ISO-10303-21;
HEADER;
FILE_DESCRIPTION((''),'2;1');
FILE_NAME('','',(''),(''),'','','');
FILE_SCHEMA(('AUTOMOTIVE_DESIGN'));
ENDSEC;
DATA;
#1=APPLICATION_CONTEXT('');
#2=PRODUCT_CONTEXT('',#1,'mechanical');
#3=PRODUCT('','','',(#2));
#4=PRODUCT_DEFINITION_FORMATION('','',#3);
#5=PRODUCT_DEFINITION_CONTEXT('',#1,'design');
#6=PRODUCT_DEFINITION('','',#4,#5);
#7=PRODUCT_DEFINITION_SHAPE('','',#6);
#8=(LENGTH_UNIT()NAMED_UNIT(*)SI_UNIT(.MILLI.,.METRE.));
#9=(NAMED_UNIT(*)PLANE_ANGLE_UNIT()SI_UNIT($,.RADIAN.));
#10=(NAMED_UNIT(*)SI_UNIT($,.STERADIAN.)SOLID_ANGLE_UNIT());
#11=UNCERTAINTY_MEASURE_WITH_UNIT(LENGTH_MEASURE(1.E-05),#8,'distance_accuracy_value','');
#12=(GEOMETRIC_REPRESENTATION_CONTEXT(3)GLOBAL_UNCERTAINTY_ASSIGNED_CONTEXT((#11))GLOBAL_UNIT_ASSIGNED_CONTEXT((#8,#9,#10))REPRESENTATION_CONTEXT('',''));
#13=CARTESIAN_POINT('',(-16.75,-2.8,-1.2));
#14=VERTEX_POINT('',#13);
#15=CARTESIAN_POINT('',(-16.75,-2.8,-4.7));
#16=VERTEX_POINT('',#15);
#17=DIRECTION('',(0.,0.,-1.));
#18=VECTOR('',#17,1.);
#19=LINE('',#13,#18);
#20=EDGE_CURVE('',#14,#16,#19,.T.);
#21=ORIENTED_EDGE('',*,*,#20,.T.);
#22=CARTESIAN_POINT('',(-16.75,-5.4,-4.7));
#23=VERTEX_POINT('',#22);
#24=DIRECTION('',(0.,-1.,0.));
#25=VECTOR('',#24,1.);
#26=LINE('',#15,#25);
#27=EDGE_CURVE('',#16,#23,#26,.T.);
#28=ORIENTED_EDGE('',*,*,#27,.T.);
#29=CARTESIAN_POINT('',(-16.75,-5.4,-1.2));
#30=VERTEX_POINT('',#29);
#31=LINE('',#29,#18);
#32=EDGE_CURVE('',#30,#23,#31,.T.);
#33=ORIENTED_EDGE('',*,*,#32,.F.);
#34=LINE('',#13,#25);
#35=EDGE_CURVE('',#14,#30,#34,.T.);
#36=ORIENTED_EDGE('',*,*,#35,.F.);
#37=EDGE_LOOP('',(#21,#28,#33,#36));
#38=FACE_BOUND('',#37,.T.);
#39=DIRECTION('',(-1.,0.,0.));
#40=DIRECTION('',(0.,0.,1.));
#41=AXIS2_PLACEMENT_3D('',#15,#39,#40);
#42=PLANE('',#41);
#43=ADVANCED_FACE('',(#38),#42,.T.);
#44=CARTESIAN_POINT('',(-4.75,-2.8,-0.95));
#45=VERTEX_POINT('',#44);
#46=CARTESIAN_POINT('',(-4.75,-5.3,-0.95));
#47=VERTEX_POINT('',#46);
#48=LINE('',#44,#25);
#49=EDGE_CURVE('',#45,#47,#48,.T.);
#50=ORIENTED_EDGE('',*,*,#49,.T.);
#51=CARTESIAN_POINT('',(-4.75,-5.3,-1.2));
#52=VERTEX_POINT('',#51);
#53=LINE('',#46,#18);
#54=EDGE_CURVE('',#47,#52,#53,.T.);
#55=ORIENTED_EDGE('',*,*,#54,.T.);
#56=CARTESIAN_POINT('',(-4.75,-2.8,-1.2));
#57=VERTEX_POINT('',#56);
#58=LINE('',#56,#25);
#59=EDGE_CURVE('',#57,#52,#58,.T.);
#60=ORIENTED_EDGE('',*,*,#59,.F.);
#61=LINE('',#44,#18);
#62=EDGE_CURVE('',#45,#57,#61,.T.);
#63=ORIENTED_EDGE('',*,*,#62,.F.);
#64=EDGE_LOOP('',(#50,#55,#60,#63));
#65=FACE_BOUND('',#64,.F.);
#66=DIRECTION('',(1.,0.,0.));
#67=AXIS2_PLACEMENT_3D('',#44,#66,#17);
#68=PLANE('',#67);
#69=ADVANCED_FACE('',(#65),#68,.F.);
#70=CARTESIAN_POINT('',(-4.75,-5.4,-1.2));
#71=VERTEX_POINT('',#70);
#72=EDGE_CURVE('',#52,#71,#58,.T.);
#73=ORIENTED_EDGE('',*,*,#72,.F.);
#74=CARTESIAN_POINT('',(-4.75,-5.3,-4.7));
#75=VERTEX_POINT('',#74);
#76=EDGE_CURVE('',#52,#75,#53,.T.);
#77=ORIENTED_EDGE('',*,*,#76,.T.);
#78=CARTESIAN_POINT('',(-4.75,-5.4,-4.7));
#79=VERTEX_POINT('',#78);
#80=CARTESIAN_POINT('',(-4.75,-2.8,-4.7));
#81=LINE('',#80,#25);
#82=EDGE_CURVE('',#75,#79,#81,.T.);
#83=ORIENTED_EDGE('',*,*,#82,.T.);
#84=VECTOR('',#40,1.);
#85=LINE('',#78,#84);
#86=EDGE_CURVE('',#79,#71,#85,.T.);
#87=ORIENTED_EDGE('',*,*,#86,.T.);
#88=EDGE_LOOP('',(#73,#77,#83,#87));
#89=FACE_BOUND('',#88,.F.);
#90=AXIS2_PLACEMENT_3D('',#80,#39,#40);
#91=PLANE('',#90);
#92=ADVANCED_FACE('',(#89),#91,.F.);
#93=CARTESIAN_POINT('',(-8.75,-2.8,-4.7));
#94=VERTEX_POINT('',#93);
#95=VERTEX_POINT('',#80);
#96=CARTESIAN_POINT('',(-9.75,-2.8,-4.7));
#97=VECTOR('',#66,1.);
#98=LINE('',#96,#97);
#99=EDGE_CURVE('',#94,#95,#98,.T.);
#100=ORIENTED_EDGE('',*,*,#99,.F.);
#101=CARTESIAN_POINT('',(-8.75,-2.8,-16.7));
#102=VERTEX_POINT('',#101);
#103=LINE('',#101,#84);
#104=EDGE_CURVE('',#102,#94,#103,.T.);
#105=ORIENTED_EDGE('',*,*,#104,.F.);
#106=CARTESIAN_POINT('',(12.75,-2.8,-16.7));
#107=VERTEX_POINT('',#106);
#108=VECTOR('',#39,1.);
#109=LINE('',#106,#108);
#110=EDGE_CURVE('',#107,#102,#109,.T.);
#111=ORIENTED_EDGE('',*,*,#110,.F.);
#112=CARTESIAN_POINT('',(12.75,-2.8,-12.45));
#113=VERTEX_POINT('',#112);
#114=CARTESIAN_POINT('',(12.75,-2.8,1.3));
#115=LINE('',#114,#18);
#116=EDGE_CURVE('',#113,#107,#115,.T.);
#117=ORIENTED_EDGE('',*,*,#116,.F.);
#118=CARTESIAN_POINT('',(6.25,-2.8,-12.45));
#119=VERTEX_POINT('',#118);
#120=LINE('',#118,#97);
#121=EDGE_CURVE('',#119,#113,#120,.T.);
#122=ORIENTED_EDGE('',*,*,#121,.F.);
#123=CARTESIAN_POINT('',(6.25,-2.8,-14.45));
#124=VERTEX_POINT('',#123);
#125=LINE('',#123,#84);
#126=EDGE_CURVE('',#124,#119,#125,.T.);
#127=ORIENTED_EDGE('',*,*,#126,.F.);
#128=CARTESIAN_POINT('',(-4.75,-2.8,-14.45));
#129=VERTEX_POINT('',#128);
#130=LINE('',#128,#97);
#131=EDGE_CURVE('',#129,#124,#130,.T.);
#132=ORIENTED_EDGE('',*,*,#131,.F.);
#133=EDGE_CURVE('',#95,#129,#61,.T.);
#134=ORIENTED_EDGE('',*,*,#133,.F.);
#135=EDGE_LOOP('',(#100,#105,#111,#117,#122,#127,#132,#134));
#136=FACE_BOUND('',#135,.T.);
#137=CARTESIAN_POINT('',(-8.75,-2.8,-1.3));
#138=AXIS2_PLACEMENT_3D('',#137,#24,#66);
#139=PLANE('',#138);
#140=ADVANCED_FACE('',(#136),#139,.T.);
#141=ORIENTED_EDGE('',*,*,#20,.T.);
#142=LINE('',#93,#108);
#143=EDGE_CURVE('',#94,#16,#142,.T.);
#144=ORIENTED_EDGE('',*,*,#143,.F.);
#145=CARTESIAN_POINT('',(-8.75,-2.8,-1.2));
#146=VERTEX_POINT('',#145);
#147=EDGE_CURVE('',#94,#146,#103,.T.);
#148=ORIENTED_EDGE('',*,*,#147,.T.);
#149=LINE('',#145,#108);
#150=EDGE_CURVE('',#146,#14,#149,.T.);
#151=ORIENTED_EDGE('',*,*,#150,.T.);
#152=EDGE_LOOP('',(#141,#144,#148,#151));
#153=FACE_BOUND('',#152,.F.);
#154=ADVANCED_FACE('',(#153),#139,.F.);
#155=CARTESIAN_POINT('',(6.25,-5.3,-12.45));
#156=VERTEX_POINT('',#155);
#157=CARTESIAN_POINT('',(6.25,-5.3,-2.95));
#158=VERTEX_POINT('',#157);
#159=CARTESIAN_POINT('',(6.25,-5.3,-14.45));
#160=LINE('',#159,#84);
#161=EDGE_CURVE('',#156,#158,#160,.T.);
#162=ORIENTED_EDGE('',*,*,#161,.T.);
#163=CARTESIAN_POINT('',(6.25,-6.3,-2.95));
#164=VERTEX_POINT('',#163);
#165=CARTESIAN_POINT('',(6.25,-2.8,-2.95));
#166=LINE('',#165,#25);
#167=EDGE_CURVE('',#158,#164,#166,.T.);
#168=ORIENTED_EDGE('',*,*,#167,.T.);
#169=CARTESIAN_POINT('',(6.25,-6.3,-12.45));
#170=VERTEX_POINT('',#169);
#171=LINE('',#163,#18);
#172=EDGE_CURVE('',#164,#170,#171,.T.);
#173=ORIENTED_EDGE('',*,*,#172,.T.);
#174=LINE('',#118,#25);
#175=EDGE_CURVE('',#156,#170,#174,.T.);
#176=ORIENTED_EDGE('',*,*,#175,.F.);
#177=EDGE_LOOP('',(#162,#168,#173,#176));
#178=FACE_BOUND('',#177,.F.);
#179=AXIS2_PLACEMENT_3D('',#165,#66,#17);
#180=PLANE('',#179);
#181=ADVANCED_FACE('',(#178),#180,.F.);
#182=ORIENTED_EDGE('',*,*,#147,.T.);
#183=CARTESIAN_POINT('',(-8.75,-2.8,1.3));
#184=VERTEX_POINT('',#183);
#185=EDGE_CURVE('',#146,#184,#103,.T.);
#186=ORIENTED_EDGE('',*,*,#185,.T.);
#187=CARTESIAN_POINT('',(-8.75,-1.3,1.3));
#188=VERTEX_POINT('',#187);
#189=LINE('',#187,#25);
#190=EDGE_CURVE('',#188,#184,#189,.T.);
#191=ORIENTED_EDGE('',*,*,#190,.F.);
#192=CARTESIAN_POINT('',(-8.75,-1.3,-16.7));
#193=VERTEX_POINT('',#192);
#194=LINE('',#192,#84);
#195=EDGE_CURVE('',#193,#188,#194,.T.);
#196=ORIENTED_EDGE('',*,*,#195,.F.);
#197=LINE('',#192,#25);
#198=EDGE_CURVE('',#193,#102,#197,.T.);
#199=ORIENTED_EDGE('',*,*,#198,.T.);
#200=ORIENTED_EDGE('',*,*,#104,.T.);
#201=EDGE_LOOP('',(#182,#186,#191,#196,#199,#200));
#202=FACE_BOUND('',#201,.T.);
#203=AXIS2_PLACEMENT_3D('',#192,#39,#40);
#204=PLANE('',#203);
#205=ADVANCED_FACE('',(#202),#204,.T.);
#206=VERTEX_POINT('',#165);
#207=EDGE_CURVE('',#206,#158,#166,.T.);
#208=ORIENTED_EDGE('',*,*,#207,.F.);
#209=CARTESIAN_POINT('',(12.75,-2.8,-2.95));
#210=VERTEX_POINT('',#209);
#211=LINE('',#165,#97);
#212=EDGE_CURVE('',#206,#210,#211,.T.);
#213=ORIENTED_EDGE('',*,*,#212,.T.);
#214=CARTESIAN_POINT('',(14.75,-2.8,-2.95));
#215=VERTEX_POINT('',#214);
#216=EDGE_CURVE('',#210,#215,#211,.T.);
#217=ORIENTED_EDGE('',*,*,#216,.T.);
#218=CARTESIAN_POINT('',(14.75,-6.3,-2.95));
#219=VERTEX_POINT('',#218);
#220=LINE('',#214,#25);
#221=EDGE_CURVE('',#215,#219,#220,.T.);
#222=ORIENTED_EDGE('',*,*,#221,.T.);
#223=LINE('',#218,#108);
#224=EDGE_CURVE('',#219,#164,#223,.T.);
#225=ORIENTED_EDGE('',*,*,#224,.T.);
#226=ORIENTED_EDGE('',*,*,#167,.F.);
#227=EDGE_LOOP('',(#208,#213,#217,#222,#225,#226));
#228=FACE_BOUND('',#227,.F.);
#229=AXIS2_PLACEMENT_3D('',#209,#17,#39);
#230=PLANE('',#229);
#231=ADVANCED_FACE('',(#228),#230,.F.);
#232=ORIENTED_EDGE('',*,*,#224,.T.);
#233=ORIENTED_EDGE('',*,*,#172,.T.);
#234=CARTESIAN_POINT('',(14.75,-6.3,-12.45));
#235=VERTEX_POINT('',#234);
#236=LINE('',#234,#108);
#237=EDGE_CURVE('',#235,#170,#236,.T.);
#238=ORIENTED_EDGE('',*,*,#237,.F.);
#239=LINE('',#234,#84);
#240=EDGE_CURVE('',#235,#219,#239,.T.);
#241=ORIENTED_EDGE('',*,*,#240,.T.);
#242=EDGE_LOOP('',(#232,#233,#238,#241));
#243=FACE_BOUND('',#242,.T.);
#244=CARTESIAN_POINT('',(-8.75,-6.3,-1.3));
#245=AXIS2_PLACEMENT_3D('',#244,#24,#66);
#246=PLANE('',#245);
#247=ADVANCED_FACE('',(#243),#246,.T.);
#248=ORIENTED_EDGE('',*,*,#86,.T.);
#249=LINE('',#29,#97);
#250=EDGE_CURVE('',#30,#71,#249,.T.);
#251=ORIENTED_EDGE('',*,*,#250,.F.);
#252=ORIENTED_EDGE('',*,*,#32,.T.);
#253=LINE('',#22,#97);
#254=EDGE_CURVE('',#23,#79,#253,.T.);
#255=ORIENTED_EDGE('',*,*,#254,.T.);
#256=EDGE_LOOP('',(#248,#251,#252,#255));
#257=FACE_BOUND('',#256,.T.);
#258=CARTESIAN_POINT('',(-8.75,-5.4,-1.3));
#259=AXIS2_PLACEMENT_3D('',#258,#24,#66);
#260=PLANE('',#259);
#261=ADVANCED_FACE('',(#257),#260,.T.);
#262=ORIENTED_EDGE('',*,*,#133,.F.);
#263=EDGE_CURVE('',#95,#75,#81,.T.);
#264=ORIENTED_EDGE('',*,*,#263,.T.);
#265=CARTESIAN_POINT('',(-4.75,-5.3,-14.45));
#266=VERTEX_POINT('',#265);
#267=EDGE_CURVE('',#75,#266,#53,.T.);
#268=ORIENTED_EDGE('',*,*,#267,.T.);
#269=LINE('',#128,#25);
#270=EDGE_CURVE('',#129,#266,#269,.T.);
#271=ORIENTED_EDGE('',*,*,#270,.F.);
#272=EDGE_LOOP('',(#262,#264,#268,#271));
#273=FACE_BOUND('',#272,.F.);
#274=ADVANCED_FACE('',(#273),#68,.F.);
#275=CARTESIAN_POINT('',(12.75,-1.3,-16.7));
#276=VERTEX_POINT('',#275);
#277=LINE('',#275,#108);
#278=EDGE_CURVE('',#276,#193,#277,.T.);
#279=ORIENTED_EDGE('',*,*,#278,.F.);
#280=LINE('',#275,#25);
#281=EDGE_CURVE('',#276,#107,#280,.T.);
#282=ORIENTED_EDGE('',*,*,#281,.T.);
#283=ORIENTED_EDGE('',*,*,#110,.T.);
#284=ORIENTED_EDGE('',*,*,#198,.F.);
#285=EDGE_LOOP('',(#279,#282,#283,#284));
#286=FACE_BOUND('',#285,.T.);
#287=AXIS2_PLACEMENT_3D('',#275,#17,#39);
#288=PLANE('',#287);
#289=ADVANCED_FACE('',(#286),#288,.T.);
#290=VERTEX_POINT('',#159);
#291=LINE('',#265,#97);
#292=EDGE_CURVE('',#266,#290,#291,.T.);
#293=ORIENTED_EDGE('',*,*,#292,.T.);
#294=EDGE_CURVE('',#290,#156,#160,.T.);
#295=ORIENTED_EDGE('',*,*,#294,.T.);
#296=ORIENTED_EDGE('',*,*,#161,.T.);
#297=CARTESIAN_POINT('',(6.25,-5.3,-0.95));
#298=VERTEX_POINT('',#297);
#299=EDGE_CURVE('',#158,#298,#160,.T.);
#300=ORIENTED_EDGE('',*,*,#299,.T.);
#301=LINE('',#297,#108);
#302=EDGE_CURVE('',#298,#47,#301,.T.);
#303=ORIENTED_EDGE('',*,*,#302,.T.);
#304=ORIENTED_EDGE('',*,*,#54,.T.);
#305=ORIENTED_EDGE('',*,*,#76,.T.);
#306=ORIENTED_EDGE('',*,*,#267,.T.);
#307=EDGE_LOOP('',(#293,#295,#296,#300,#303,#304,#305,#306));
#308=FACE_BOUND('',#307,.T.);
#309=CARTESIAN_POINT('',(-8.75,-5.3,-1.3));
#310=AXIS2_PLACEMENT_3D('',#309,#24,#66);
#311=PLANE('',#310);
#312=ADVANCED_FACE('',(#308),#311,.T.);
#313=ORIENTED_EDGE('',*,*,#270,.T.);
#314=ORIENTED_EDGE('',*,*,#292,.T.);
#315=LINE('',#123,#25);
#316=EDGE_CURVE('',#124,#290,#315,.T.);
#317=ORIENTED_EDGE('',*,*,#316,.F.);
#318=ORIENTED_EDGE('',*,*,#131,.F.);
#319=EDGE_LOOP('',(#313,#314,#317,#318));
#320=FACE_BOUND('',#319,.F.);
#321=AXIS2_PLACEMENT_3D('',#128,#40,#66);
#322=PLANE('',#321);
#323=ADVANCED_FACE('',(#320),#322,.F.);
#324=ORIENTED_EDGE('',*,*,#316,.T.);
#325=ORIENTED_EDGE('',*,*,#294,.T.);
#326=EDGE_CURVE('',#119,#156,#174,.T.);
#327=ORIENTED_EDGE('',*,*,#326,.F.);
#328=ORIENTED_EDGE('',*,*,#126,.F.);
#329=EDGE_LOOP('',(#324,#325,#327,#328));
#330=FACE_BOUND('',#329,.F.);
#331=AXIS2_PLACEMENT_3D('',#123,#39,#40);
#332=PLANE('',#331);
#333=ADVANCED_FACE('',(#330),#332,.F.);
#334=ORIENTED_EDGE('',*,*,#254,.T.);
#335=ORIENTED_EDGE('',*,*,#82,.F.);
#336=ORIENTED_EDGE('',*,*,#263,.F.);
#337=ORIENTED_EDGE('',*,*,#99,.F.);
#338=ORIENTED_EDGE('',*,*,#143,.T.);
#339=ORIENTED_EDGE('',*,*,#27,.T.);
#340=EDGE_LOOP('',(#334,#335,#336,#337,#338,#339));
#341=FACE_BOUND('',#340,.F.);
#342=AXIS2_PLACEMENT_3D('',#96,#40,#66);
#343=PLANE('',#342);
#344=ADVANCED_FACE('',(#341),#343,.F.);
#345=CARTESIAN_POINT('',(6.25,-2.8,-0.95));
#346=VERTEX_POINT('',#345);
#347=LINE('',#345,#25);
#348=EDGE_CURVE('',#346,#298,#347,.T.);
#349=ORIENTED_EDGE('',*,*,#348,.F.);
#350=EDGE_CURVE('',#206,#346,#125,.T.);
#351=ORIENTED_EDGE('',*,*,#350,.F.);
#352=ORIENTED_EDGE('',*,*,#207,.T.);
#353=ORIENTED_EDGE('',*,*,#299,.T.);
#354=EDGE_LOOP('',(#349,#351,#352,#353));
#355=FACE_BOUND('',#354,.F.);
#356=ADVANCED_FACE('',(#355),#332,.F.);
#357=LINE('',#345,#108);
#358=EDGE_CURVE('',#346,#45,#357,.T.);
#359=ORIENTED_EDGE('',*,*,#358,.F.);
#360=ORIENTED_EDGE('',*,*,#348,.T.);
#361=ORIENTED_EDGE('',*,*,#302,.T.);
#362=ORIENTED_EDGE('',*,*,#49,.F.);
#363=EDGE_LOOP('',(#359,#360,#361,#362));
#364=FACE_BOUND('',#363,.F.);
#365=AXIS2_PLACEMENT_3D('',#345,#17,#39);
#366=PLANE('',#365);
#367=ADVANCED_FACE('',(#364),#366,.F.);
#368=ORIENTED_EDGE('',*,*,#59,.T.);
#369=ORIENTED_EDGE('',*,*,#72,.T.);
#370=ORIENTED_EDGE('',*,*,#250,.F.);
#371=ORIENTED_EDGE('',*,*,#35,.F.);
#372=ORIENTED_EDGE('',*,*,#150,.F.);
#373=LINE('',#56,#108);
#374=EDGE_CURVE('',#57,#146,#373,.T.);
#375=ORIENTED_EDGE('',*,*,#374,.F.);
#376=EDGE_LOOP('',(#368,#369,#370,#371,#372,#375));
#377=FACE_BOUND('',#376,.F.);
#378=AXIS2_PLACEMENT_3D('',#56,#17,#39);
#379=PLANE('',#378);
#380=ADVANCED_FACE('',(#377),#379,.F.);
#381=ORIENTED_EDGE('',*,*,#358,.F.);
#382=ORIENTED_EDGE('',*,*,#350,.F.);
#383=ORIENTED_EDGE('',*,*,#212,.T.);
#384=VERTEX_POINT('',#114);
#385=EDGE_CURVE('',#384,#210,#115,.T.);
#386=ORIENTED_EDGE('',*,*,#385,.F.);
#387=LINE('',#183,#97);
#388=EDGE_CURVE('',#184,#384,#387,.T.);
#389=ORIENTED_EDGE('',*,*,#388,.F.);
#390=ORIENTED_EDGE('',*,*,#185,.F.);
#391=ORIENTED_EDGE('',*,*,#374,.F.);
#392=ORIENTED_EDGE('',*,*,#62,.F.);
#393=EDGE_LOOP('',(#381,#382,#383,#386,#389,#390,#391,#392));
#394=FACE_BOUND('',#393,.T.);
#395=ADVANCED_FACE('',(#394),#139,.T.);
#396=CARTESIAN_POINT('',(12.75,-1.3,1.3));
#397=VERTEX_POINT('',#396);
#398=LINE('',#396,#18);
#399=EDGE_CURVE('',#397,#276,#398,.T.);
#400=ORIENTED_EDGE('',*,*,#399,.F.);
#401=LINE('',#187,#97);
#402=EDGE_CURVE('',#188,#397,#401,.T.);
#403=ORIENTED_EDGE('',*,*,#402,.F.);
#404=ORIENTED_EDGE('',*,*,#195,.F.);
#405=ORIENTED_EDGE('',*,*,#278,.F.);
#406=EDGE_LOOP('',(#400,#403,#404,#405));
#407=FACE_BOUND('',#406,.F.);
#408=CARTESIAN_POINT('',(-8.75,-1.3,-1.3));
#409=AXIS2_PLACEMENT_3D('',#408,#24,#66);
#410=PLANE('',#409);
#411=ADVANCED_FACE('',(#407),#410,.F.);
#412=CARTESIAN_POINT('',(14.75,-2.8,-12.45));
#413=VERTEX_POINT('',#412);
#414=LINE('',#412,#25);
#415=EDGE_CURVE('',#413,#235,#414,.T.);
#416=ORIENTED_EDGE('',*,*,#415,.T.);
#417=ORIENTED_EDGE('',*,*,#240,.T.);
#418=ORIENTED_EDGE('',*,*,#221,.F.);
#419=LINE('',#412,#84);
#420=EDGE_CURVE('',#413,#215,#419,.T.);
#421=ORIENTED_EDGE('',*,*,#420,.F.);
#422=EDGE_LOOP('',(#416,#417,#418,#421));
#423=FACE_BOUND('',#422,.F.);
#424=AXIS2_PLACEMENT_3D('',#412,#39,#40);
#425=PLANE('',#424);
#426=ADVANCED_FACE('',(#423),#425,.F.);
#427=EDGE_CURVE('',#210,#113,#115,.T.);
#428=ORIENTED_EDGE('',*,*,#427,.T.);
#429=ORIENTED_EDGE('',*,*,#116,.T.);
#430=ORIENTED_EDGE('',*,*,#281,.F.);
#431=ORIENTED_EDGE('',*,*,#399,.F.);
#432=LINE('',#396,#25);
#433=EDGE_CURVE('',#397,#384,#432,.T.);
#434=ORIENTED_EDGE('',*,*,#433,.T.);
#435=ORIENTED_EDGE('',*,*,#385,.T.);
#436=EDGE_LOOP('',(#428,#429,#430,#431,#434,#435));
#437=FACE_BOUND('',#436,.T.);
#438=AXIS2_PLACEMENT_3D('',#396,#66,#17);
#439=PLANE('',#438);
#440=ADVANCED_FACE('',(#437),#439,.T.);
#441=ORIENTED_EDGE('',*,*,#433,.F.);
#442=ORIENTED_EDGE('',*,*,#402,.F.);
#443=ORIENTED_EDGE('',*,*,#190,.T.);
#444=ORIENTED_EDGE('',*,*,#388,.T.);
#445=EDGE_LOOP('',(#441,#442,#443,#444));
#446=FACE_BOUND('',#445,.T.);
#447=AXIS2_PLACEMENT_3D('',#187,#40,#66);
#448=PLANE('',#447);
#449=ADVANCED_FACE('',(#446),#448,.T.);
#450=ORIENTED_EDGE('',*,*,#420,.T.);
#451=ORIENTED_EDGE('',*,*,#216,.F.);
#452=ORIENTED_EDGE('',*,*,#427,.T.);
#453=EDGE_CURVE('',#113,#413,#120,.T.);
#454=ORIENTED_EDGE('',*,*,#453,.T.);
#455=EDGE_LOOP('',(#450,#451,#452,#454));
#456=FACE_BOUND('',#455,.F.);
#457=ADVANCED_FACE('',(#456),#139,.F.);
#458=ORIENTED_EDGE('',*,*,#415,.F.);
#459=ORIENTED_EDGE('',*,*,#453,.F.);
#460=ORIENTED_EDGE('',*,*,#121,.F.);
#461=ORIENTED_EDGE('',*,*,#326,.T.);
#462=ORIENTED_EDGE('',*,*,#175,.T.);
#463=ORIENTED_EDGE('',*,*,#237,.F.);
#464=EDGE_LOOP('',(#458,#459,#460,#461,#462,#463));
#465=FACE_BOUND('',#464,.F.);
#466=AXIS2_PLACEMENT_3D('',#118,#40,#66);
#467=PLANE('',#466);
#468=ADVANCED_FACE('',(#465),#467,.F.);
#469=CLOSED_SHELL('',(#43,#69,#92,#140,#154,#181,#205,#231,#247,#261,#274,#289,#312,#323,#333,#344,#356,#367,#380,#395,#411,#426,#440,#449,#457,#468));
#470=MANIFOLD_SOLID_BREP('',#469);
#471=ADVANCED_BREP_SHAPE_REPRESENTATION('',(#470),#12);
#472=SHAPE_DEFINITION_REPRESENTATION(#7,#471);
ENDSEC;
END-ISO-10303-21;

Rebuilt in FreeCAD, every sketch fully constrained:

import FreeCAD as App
import Part
import Sketcher
from FreeCAD import Vector
Q = App.Units.Quantity


def add_polygon(sketch, points):
    """Adds a closed chain of lines whose ends are joined by coincident constraints."""
    first, n = sketch.GeometryCount, len(points)
    for a, b in zip(points, points[1:] + points[:1]):
        sketch.addGeometry(Part.LineSegment(App.Vector(*a, 0), App.Vector(*b, 0)), False)
    for i in range(n):
        sketch.addConstraint(Sketcher.Constraint("Coincident", first + i, 2, first + (i + 1) % n, 1))

doc = App.newDocument("Part")
body = doc.addObject("PartDesign::Body", "Body")

sketch1 = body.newObject("Sketcher::SketchObject", "Sketch")
sketch1.AttachmentSupport = (doc.getObject("XZ_Plane"), [""])
sketch1.MapMode = "FlatFace"
sketch1.AttachmentOffset = App.Placement(Vector(0, 0, 1.3), App.Rotation())
add_polygon(sketch1, [(-8.75, -16.7), (12.75, -16.7), (12.75, 1.3), (-8.75, 1.3)])
sketch1.addConstraint([
    Sketcher.Constraint("Horizontal", 0),
    Sketcher.Constraint("Vertical", 1),
    Sketcher.Constraint("Horizontal", 2),
    Sketcher.Constraint("Vertical", 3),
    Sketcher.Constraint("DistanceY", 1, 1, 1, 2, Q("18 mm")),
    Sketcher.Constraint("DistanceX", 0, 1, 0, 2, Q("21.5 mm")),
    Sketcher.Constraint("DistanceY", 0, 2, -1, 1, Q("16.7 mm")),
    Sketcher.Constraint("DistanceX", -1, 1, 0, 2, Q("12.75 mm")),
])
pad1 = body.newObject("PartDesign::Pad", "Pad")
pad1.Profile = sketch1
pad1.Length = 1.5

sketch2 = body.newObject("Sketcher::SketchObject", "Sketch001")
sketch2.AttachmentSupport = (doc.getObject("XZ_Plane"), [""])
sketch2.MapMode = "FlatFace"
sketch2.AttachmentOffset = App.Placement(Vector(0, 0, 2.8), App.Rotation())
add_polygon(sketch2, [(6.25, -12.45), (14.75, -12.45), (14.75, -2.95), (6.25, -2.95)])
sketch2.addConstraint([
    Sketcher.Constraint("Horizontal", 0),
    Sketcher.Constraint("Vertical", 1),
    Sketcher.Constraint("Horizontal", 2),
    Sketcher.Constraint("Vertical", 3),
    Sketcher.Constraint("DistanceX", 0, 1, 0, 2, Q("8.5 mm")),
    Sketcher.Constraint("DistanceY", 1, 1, 1, 2, Q("9.5 mm")),
    Sketcher.Constraint("DistanceX", -1, 1, 0, 2, Q("14.75 mm")),
    Sketcher.Constraint("DistanceY", 0, 2, -1, 1, Q("12.45 mm")),
])
pad2 = body.newObject("PartDesign::Pad", "Pad001")
pad2.Profile = sketch2
pad2.Length = 3.5

sketch3 = body.newObject("Sketcher::SketchObject", "Sketch002")
sketch3.AttachmentSupport = (doc.getObject("XZ_Plane"), [""])
sketch3.MapMode = "FlatFace"
sketch3.AttachmentOffset = App.Placement(Vector(0, 0, 2.8), App.Rotation())
add_polygon(sketch3, [(6.25, -14.45), (6.25, -0.95), (-4.75, -0.95), (-4.75, -14.45)])
sketch3.addConstraint([
    Sketcher.Constraint("Vertical", 0),
    Sketcher.Constraint("Horizontal", 1),
    Sketcher.Constraint("Vertical", 2),
    Sketcher.Constraint("Horizontal", 3),
    Sketcher.Constraint("DistanceX", 1, 2, 1, 1, Q("11 mm")),
    Sketcher.Constraint("DistanceY", 0, 1, 0, 2, Q("13.5 mm")),
    Sketcher.Constraint("DistanceX", -1, 1, 0, 2, Q("6.25 mm")),
    Sketcher.Constraint("DistanceY", 0, 2, -1, 1, Q("0.95 mm")),
])
pad3 = body.newObject("PartDesign::Pad", "Pad002")
pad3.Profile = sketch3
pad3.Length = 2.5

sketch4 = body.newObject("Sketcher::SketchObject", "Sketch003")
sketch4.AttachmentSupport = (doc.getObject("XZ_Plane"), [""])
sketch4.MapMode = "FlatFace"
sketch4.AttachmentOffset = App.Placement(Vector(0, 0, 2.8), App.Rotation())
add_polygon(sketch4, [(-9.75, -1.2), (-9.75, -4.7), (-4.75, -4.7), (-4.75, -1.2)])
sketch4.addConstraint([
    Sketcher.Constraint("Vertical", 0),
    Sketcher.Constraint("Horizontal", 1),
    Sketcher.Constraint("Vertical", 2),
    Sketcher.Constraint("Horizontal", 3),
    Sketcher.Constraint("DistanceX", 1, 1, 1, 2, Q("5 mm")),
    Sketcher.Constraint("DistanceY", 0, 2, 0, 1, Q("3.5 mm")),
    Sketcher.Constraint("DistanceY", 0, 2, -1, 1, Q("4.7 mm")),
    Sketcher.Constraint("DistanceX", 0, 2, -1, 1, Q("9.75 mm")),
])
pad4 = body.newObject("PartDesign::Pad", "Pad003")
pad4.Profile = sketch4
pad4.Length = 2.6

sketch5 = body.newObject("Sketcher::SketchObject", "Sketch004")
sketch5.AttachmentSupport = (doc.getObject("YZ_Plane"), [""])
sketch5.MapMode = "FlatFace"
sketch5.AttachmentOffset = App.Placement(Vector(0, 0, -9.75), App.Rotation())
add_polygon(sketch5, [(-5.4, -4.7), (-5.4, -1.2), (-2.8, -1.2), (-2.8, -4.7)])
sketch5.addConstraint([
    Sketcher.Constraint("Vertical", 0),
    Sketcher.Constraint("Horizontal", 1),
    Sketcher.Constraint("Vertical", 2),
    Sketcher.Constraint("Horizontal", 3),
    Sketcher.Constraint("DistanceX", 1, 1, 1, 2, Q("2.6 mm")),
    Sketcher.Constraint("DistanceY", 0, 1, 0, 2, Q("3.5 mm")),
    Sketcher.Constraint("DistanceX", 0, 2, -1, 1, Q("5.4 mm")),
    Sketcher.Constraint("DistanceY", 0, 2, -1, 1, Q("1.2 mm")),
])
pad5 = body.newObject("PartDesign::Pad", "Pad004")
pad5.Profile = sketch5
pad5.Length = 7
pad5.Reversed = True

doc.recompute()
